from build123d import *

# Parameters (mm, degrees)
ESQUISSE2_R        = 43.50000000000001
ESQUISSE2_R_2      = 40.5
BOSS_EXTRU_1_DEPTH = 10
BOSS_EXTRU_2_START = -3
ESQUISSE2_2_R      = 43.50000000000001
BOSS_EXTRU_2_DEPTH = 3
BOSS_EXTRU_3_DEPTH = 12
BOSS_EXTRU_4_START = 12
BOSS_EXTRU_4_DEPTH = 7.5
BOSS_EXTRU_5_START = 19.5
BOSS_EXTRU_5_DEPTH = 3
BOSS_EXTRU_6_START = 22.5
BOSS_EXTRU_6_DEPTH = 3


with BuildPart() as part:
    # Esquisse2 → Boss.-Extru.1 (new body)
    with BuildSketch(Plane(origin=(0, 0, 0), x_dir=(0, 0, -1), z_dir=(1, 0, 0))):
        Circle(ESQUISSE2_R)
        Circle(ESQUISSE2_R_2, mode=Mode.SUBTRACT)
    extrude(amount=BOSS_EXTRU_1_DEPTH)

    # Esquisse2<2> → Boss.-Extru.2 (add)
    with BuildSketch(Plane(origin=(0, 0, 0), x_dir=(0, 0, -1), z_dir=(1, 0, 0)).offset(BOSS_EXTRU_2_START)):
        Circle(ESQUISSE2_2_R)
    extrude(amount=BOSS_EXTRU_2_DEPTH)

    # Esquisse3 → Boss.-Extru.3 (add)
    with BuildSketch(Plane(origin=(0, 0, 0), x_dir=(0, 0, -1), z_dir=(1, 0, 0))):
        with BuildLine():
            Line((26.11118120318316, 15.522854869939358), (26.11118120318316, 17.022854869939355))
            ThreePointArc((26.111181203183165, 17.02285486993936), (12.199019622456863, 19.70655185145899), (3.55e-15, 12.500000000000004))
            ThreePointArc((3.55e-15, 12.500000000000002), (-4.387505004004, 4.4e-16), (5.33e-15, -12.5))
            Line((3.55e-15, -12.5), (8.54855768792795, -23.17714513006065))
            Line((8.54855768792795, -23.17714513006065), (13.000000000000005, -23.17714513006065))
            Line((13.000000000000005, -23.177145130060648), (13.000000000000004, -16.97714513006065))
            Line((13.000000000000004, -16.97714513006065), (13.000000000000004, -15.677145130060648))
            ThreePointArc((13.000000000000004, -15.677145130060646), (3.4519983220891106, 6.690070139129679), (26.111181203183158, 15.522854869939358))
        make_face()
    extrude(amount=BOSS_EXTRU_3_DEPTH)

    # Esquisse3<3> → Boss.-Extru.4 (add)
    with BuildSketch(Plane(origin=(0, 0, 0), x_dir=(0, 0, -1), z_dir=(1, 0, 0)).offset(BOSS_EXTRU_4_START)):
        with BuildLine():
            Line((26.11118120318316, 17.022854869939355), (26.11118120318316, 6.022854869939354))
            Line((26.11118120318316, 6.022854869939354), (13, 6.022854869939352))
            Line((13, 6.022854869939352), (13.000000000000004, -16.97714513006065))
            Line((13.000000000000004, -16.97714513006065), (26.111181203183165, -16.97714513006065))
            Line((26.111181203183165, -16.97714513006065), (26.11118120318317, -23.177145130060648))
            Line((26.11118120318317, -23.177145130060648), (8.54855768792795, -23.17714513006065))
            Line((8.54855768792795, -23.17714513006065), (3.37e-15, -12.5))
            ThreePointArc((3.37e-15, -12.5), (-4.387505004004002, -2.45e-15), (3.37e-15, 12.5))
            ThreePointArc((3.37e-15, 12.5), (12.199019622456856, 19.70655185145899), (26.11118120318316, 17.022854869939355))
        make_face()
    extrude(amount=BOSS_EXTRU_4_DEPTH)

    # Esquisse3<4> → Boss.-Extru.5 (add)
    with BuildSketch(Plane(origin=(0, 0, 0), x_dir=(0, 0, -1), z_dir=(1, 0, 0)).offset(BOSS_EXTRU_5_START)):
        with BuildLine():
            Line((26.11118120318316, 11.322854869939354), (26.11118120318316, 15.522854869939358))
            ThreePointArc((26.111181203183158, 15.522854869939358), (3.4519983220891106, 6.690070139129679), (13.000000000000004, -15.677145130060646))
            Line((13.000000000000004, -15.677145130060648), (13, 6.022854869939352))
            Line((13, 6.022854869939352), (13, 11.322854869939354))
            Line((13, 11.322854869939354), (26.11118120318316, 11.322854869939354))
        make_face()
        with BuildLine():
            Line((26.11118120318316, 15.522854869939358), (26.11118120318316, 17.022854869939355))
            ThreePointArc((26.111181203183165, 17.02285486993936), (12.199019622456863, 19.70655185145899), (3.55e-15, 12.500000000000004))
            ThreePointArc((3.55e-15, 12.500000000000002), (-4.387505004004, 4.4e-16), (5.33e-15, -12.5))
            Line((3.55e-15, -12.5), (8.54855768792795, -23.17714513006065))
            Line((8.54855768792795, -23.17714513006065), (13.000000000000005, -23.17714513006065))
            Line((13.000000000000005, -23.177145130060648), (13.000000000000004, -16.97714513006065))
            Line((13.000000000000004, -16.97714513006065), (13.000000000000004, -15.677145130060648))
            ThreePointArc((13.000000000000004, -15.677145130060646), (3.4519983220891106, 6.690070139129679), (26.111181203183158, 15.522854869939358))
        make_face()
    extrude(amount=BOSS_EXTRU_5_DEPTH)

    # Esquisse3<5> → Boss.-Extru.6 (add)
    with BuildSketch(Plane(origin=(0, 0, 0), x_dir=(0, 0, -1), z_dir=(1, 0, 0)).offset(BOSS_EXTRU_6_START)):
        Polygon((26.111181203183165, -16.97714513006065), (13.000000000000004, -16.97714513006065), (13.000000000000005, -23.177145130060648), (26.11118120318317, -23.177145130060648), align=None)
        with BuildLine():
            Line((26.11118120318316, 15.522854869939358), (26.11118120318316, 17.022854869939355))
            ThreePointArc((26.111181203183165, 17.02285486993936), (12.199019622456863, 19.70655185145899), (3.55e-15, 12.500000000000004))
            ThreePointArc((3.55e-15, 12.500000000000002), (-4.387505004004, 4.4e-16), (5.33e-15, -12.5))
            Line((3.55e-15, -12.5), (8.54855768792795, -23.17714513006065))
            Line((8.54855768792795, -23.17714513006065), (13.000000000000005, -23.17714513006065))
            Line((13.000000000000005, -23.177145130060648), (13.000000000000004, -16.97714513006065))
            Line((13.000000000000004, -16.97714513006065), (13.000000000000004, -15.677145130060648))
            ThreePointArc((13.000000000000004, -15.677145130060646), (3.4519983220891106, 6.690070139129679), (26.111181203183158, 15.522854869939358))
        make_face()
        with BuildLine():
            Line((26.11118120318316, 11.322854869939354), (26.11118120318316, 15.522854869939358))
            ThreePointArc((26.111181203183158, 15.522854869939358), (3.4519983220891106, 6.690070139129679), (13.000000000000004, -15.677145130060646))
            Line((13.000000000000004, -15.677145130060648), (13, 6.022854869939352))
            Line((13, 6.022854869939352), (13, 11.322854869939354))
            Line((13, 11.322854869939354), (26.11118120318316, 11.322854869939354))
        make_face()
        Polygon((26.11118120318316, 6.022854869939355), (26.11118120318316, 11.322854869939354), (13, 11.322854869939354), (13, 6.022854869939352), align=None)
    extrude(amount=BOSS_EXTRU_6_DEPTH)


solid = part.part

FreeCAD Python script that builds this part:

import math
import FreeCAD as App
import Part
import Sketcher

V = App.Vector

doc = App.newDocument("Part")
params = doc.addObject("Spreadsheet::Sheet", "Params")
for row, (alias, value) in enumerate([
    ("sketch1_diameter", "87 mm"),
    ("sketch1_diameter2", "81 mm"),
    ("pad1_length", "10 mm"),
    ("sketch2_diameter", "87 mm"),
    ("pad2_length", "3 mm"),
    ("sketch3_radius", "20 mm"),
    ("sketch3_radius2", "16.93 mm"),
    ("sketch3_width", "1.5 mm"),
    ("sketch3_width2", "7.5 mm"),
    ("pad3_length", "12 mm"),
    ("sketch4_radius", "20 mm"),
    ("sketch4_width", "11 mm"),
    ("sketch4_width2", "23 mm"),
    ("sketch4_width3", "6.2 mm"),
    ("pad4_length", "7.5 mm"),
    ("sketch5_radius", "20 mm"),
    ("sketch5_width", "5.7 mm"),
    ("sketch5_width2", "34.5 mm"),
    ("pad5_length", "3 mm"),
    ("sketch6_radius", "20 mm"),
    ("sketch6_width", "23 mm"),
    ("sketch6_width2", "11 mm"),
    ("sketch6_width3", "6.2 mm"),
    ("pad6_length", "3 mm"),
], start=1):
    params.set(f"A{row}", alias)
    params.set(f"B{row}", "=" + value)
    params.setAlias(f"B{row}", alias)

body = doc.addObject("PartDesign::Body", "Body")

sketch1 = body.newObject("Sketcher::SketchObject", "Sketch")
sketch1.AttachmentSupport = (doc.getObject("YZ_Plane"), [""])
sketch1.MapMode = "FlatFace"
sketch1.addGeometry([
    Part.Circle(V(0, 0, 0), V(0, 0, 1), 44),
    Part.Circle(V(0, 0, 0), V(0, 0, 1), 40),
], False)
sketch1.addConstraint([
    Sketcher.Constraint("Coincident", 0, 3, -1, 1),
    Sketcher.Constraint("Coincident", 1, 3, -1, 1),
    Sketcher.Constraint("Diameter", 0, 87.0),
    Sketcher.Constraint("Diameter", 1, 81.0),
])
sketch1.setExpression("Constraints[2]", "Params.sketch1_diameter")
sketch1.setExpression("Constraints[3]", "Params.sketch1_diameter2")
pad1 = body.newObject("PartDesign::Pad", "Pad")
pad1.Profile = sketch1
pad1.setExpression("Length", "Params.pad1_length")

sketch2 = body.newObject("Sketcher::SketchObject", "Sketch001")
sketch2.AttachmentSupport = (doc.getObject("YZ_Plane"), [""])
sketch2.MapMode = "FlatFace"
sketch2.AttachmentOffset = App.Placement(V(0, 0, -3), App.Rotation())
sketch2.addGeometry(Part.Circle(V(0, 0, 0), V(0, 0, 1), 44), False)
sketch2.addConstraint([
    Sketcher.Constraint("Coincident", 0, 3, -1, 1),
    Sketcher.Constraint("Diameter", 0, 87.0),
])
sketch2.setExpression("Constraints[1]", "Params.sketch2_diameter")
pad2 = body.newObject("PartDesign::Pad", "Pad001")
pad2.Profile = sketch2
pad2.setExpression("Length", "Params.pad2_length")

sketch3 = body.newObject("Sketcher::SketchObject", "Sketch002")
sketch3.AttachmentSupport = (doc.getObject("YZ_Plane"), [""])
sketch3.MapMode = "FlatFace"
sketch3.addGeometry([
    Part.LineSegment(V(15.5, -26.1, 0), V(17, -26.1, 0)),
    Part.ArcOfCircle(Part.Circle(V(0, -15.6, 0), V(0, 0, 1), 20), math.radians(-32), math.radians(129)),
    Part.LineSegment(V(-12.5, 0, 0), V(-23.2, -8.5, 0)),
    Part.LineSegment(V(-23.2, -8.5, 0), V(-23.2, -13, 0)),
    Part.LineSegment(V(-23.2, -13, 0), V(-15.7, -13, 0)),
    Part.ArcOfCircle(Part.Circle(V(0.1, -19.1, 0), V(0, 0, 1), 16.9), math.radians(-25), math.radians(159)),
], False)
sketch3.addConstraint([
    Sketcher.Constraint("Coincident", 0, 2, 1, 1),
    Sketcher.Constraint("Tangent", 1, 2, 2, 1),
    Sketcher.Constraint("Coincident", 2, 2, 3, 1),
    Sketcher.Constraint("Coincident", 3, 2, 4, 1),
    Sketcher.Constraint("Coincident", 4, 2, 5, 2),
    Sketcher.Constraint("Coincident", 5, 1, 0, 1),
    Sketcher.Constraint("Horizontal", 0),
    Sketcher.Constraint("Vertical", 3),
    Sketcher.Constraint("Horizontal", 4),
    Sketcher.Constraint("PointOnObject", 1, 3, -2),
    Sketcher.Constraint("PointOnObject", 1, 2, -1),
    Sketcher.Constraint("Radius", 1, 20.0),
    Sketcher.Constraint("Radius", 5, 16.93),
    Sketcher.Constraint("DistanceX", 0, 1, 0, 2, 1.5),
    Sketcher.Constraint("DistanceX", 4, 1, 4, 2, 7.5),
    Sketcher.Constraint("DistanceY", 3, 2, -1, 1, 13.0),
    Sketcher.Constraint("DistanceX", 1, 2, -1, 1, 12.5),
    Sketcher.Constraint("DistanceX", 2, 2, 0, 2, 40.2),
    Sketcher.Constraint("DistanceY", 3, 2, 3, 1, 4.451442),
])
sketch3.setExpression("Constraints[11]", "Params.sketch3_radius")
sketch3.setExpression("Constraints[12]", "Params.sketch3_radius2")
sketch3.setExpression("Constraints[13]", "Params.sketch3_width")
sketch3.setExpression("Constraints[14]", "Params.sketch3_width2")
pad3 = body.newObject("PartDesign::Pad", "Pad002")
pad3.Profile = sketch3
pad3.setExpression("Length", "Params.pad3_length")

sketch4 = body.newObject("Sketcher::SketchObject", "Sketch003")
sketch4.AttachmentSupport = (doc.getObject("YZ_Plane"), [""])
sketch4.MapMode = "FlatFace"
sketch4.AttachmentOffset = App.Placement(V(0, 0, 12), App.Rotation())
sketch4.addGeometry([
    Part.LineSegment(V(6, -26, 0), V(17, -26, 0)),
    Part.ArcOfCircle(Part.Circle(V(0, -16, 0), V(0, 0, 1), 20), math.radians(-32), math.radians(129)),
    Part.LineSegment(V(-12, 0, 0), V(-23, -9, 0)),
    Part.LineSegment(V(-23, -9, 0), V(-23, -26, 0)),
    Part.LineSegment(V(-23, -26, 0), V(-17, -26, 0)),
    Part.LineSegment(V(-17, -26, 0), V(-17, -13, 0)),
    Part.LineSegment(V(-17, -13, 0), V(6, -13, 0)),
    Part.LineSegment(V(6, -13, 0), V(6, -26, 0)),
], False)
sketch4.addConstraint([
    Sketcher.Constraint("Coincident", 0, 2, 1, 1),
    Sketcher.Constraint("Tangent", 1, 2, 2, 1),
    Sketcher.Constraint("Coincident", 2, 2, 3, 1),
    Sketcher.Constraint("Coincident", 3, 2, 4, 1),
    Sketcher.Constraint("Coincident", 4, 2, 5, 1),
    Sketcher.Constraint("Coincident", 5, 2, 6, 1),
    Sketcher.Constraint("Coincident", 6, 2, 7, 1),
    Sketcher.Constraint("Coincident", 7, 2, 0, 1),
    Sketcher.Constraint("Horizontal", 0),
    Sketcher.Constraint("Vertical", 3),
    Sketcher.Constraint("Horizontal", 4),
    Sketcher.Constraint("Vertical", 5),
    Sketcher.Constraint("Horizontal", 6),
    Sketcher.Constraint("Vertical", 7),
    Sketcher.Constraint("PointOnObject", 1, 3, -2),
    Sketcher.Constraint("PointOnObject", 1, 2, -1),
    Sketcher.Constraint("Horizontal", 0, 2, 3, 2),
    Sketcher.Constraint("Radius", 1, 20.0),
    Sketcher.Constraint("DistanceX", 0, 1, 0, 2, 11.0),
    Sketcher.Constraint("DistanceX", 6, 1, 6, 2, 23.0),
    Sketcher.Constraint("DistanceX", 4, 1, 4, 2, 6.2),
    Sketcher.Constraint("DistanceY", 5, 2, -1, 1, 13.0),
    Sketcher.Constraint("DistanceX", 1, 2, -1, 1, 12.5),
    Sketcher.Constraint("DistanceY", 5, 1, 5, 2, 13.111181),
])
sketch4.setExpression("Constraints[17]", "Params.sketch4_radius")
sketch4.setExpression("Constraints[18]", "Params.sketch4_width")
sketch4.setExpression("Constraints[19]", "Params.sketch4_width2")
sketch4.setExpression("Constraints[20]", "Params.sketch4_width3")
pad4 = body.newObject("PartDesign::Pad", "Pad003")
pad4.Profile = sketch4
pad4.setExpression("Length", "Params.pad4_length")

sketch5 = body.newObject("Sketcher::SketchObject", "Sketch004")
sketch5.AttachmentSupport = (doc.getObject("YZ_Plane"), [""])
sketch5.MapMode = "FlatFace"
sketch5.AttachmentOffset = App.Placement(V(0, 0, 19.5), App.Rotation())
sketch5.addGeometry([
    Part.LineSegment(V(11.3, -26.1, 0), V(17, -26.1, 0)),
    Part.ArcOfCircle(Part.Circle(V(0, -15.6, 0), V(0, 0, 1), 20), math.radians(-32), math.radians(129)),
    Part.LineSegment(V(-12.5, 0, 0), V(-23.2, -8.5, 0)),
    Part.LineSegment(V(-23.2, -8.5, 0), V(-23.2, -13, 0)),
    Part.LineSegment(V(-23.2, -13, 0), V(11.3, -13, 0)),
    Part.LineSegment(V(11.3, -13, 0), V(11.3, -26.1, 0)),
], False)
sketch5.addConstraint([
    Sketcher.Constraint("Coincident", 0, 2, 1, 1),
    Sketcher.Constraint("Tangent", 1, 2, 2, 1),
    Sketcher.Constraint("Coincident", 2, 2, 3, 1),
    Sketcher.Constraint("Coincident", 3, 2, 4, 1),
    Sketcher.Constraint("Coincident", 4, 2, 5, 1),
    Sketcher.Constraint("Coincident", 5, 2, 0, 1),
    Sketcher.Constraint("Horizontal", 0),
    Sketcher.Constraint("Vertical", 3),
    Sketcher.Constraint("Horizontal", 4),
    Sketcher.Constraint("Vertical", 5),
    Sketcher.Constraint("PointOnObject", 1, 3, -2),
    Sketcher.Constraint("PointOnObject", 1, 2, -1),
    Sketcher.Constraint("Radius", 1, 20.0),
    Sketcher.Constraint("DistanceX", 0, 1, 0, 2, 5.7),
    Sketcher.Constraint("DistanceX", 4, 1, 4, 2, 34.5),
    Sketcher.Constraint("DistanceY", 3, 2, -1, 1, 13.0),
    Sketcher.Constraint("DistanceX", 1, 2, -1, 1, 12.5),
    Sketcher.Constraint("DistanceY", 5, 2, 5, 1, 13.111181),
])
sketch5.setExpression("Constraints[12]", "Params.sketch5_radius")
sketch5.setExpression("Constraints[13]", "Params.sketch5_width")
sketch5.setExpression("Constraints[14]", "Params.sketch5_width2")
pad5 = body.newObject("PartDesign::Pad", "Pad004")
pad5.Profile = sketch5
pad5.setExpression("Length", "Params.pad5_length")

sketch6 = body.newObject("Sketcher::SketchObject", "Sketch005")
sketch6.AttachmentSupport = (doc.getObject("YZ_Plane"), [""])
sketch6.MapMode = "FlatFace"
sketch6.AttachmentOffset = App.Placement(V(0, 0, 22.5), App.Rotation())
sketch6.addGeometry([
    Part.LineSegment(V(-17, -26, 0), V(-17, -13, 0)),
    Part.LineSegment(V(-17, -13, 0), V(6, -13, 0)),
    Part.LineSegment(V(6, -13, 0), V(6, -26, 0)),
    Part.LineSegment(V(6, -26, 0), V(17, -26, 0)),
    Part.ArcOfCircle(Part.Circle(V(0, -16, 0), V(0, 0, 1), 20), math.radians(-32), math.radians(129)),
    Part.LineSegment(V(-12, 0, 0), V(-23, -9, 0)),
    Part.LineSegment(V(-23, -9, 0), V(-23, -26, 0)),
    Part.LineSegment(V(-23, -26, 0), V(-17, -26, 0)),
], False)
sketch6.addConstraint([
    Sketcher.Constraint("Coincident", 0, 2, 1, 1),
    Sketcher.Constraint("Coincident", 1, 2, 2, 1),
    Sketcher.Constraint("Coincident", 2, 2, 3, 1),
    Sketcher.Constraint("Coincident", 3, 2, 4, 1),
    Sketcher.Constraint("Tangent", 4, 2, 5, 1),
    Sketcher.Constraint("Coincident", 5, 2, 6, 1),
    Sketcher.Constraint("Coincident", 6, 2, 7, 1),
    Sketcher.Constraint("Coincident", 7, 2, 0, 1),
    Sketcher.Constraint("Vertical", 0),
    Sketcher.Constraint("Horizontal", 1),
    Sketcher.Constraint("Vertical", 2),
    Sketcher.Constraint("Horizontal", 3),
    Sketcher.Constraint("Vertical", 6),
    Sketcher.Constraint("Horizontal", 7),
    Sketcher.Constraint("PointOnObject", 4, 3, -2),
    Sketcher.Constraint("PointOnObject", 4, 2, -1),
    Sketcher.Constraint("Horizontal", 3, 2, 6, 2),
    Sketcher.Constraint("Radius", 4, 20.0),
    Sketcher.Constraint("DistanceX", 1, 1, 1, 2, 23.0),
    Sketcher.Constraint("DistanceX", 3, 1, 3, 2, 11.0),
    Sketcher.Constraint("DistanceX", 7, 1, 7, 2, 6.2),
    Sketcher.Constraint("DistanceY", 0, 2, -1, 1, 13.0),
    Sketcher.Constraint("DistanceX", 4, 2, -1, 1, 12.5),
    Sketcher.Constraint("DistanceY", 0, 1, 0, 2, 13.111181),
])
sketch6.setExpression("Constraints[17]", "Params.sketch6_radius")
sketch6.setExpression("Constraints[18]", "Params.sketch6_width")
sketch6.setExpression("Constraints[19]", "Params.sketch6_width2")
sketch6.setExpression("Constraints[20]", "Params.sketch6_width3")
pad6 = body.newObject("PartDesign::Pad", "Pad005")
pad6.Profile = sketch6
pad6.setExpression("Length", "Params.pad6_length")

doc.recompute()
